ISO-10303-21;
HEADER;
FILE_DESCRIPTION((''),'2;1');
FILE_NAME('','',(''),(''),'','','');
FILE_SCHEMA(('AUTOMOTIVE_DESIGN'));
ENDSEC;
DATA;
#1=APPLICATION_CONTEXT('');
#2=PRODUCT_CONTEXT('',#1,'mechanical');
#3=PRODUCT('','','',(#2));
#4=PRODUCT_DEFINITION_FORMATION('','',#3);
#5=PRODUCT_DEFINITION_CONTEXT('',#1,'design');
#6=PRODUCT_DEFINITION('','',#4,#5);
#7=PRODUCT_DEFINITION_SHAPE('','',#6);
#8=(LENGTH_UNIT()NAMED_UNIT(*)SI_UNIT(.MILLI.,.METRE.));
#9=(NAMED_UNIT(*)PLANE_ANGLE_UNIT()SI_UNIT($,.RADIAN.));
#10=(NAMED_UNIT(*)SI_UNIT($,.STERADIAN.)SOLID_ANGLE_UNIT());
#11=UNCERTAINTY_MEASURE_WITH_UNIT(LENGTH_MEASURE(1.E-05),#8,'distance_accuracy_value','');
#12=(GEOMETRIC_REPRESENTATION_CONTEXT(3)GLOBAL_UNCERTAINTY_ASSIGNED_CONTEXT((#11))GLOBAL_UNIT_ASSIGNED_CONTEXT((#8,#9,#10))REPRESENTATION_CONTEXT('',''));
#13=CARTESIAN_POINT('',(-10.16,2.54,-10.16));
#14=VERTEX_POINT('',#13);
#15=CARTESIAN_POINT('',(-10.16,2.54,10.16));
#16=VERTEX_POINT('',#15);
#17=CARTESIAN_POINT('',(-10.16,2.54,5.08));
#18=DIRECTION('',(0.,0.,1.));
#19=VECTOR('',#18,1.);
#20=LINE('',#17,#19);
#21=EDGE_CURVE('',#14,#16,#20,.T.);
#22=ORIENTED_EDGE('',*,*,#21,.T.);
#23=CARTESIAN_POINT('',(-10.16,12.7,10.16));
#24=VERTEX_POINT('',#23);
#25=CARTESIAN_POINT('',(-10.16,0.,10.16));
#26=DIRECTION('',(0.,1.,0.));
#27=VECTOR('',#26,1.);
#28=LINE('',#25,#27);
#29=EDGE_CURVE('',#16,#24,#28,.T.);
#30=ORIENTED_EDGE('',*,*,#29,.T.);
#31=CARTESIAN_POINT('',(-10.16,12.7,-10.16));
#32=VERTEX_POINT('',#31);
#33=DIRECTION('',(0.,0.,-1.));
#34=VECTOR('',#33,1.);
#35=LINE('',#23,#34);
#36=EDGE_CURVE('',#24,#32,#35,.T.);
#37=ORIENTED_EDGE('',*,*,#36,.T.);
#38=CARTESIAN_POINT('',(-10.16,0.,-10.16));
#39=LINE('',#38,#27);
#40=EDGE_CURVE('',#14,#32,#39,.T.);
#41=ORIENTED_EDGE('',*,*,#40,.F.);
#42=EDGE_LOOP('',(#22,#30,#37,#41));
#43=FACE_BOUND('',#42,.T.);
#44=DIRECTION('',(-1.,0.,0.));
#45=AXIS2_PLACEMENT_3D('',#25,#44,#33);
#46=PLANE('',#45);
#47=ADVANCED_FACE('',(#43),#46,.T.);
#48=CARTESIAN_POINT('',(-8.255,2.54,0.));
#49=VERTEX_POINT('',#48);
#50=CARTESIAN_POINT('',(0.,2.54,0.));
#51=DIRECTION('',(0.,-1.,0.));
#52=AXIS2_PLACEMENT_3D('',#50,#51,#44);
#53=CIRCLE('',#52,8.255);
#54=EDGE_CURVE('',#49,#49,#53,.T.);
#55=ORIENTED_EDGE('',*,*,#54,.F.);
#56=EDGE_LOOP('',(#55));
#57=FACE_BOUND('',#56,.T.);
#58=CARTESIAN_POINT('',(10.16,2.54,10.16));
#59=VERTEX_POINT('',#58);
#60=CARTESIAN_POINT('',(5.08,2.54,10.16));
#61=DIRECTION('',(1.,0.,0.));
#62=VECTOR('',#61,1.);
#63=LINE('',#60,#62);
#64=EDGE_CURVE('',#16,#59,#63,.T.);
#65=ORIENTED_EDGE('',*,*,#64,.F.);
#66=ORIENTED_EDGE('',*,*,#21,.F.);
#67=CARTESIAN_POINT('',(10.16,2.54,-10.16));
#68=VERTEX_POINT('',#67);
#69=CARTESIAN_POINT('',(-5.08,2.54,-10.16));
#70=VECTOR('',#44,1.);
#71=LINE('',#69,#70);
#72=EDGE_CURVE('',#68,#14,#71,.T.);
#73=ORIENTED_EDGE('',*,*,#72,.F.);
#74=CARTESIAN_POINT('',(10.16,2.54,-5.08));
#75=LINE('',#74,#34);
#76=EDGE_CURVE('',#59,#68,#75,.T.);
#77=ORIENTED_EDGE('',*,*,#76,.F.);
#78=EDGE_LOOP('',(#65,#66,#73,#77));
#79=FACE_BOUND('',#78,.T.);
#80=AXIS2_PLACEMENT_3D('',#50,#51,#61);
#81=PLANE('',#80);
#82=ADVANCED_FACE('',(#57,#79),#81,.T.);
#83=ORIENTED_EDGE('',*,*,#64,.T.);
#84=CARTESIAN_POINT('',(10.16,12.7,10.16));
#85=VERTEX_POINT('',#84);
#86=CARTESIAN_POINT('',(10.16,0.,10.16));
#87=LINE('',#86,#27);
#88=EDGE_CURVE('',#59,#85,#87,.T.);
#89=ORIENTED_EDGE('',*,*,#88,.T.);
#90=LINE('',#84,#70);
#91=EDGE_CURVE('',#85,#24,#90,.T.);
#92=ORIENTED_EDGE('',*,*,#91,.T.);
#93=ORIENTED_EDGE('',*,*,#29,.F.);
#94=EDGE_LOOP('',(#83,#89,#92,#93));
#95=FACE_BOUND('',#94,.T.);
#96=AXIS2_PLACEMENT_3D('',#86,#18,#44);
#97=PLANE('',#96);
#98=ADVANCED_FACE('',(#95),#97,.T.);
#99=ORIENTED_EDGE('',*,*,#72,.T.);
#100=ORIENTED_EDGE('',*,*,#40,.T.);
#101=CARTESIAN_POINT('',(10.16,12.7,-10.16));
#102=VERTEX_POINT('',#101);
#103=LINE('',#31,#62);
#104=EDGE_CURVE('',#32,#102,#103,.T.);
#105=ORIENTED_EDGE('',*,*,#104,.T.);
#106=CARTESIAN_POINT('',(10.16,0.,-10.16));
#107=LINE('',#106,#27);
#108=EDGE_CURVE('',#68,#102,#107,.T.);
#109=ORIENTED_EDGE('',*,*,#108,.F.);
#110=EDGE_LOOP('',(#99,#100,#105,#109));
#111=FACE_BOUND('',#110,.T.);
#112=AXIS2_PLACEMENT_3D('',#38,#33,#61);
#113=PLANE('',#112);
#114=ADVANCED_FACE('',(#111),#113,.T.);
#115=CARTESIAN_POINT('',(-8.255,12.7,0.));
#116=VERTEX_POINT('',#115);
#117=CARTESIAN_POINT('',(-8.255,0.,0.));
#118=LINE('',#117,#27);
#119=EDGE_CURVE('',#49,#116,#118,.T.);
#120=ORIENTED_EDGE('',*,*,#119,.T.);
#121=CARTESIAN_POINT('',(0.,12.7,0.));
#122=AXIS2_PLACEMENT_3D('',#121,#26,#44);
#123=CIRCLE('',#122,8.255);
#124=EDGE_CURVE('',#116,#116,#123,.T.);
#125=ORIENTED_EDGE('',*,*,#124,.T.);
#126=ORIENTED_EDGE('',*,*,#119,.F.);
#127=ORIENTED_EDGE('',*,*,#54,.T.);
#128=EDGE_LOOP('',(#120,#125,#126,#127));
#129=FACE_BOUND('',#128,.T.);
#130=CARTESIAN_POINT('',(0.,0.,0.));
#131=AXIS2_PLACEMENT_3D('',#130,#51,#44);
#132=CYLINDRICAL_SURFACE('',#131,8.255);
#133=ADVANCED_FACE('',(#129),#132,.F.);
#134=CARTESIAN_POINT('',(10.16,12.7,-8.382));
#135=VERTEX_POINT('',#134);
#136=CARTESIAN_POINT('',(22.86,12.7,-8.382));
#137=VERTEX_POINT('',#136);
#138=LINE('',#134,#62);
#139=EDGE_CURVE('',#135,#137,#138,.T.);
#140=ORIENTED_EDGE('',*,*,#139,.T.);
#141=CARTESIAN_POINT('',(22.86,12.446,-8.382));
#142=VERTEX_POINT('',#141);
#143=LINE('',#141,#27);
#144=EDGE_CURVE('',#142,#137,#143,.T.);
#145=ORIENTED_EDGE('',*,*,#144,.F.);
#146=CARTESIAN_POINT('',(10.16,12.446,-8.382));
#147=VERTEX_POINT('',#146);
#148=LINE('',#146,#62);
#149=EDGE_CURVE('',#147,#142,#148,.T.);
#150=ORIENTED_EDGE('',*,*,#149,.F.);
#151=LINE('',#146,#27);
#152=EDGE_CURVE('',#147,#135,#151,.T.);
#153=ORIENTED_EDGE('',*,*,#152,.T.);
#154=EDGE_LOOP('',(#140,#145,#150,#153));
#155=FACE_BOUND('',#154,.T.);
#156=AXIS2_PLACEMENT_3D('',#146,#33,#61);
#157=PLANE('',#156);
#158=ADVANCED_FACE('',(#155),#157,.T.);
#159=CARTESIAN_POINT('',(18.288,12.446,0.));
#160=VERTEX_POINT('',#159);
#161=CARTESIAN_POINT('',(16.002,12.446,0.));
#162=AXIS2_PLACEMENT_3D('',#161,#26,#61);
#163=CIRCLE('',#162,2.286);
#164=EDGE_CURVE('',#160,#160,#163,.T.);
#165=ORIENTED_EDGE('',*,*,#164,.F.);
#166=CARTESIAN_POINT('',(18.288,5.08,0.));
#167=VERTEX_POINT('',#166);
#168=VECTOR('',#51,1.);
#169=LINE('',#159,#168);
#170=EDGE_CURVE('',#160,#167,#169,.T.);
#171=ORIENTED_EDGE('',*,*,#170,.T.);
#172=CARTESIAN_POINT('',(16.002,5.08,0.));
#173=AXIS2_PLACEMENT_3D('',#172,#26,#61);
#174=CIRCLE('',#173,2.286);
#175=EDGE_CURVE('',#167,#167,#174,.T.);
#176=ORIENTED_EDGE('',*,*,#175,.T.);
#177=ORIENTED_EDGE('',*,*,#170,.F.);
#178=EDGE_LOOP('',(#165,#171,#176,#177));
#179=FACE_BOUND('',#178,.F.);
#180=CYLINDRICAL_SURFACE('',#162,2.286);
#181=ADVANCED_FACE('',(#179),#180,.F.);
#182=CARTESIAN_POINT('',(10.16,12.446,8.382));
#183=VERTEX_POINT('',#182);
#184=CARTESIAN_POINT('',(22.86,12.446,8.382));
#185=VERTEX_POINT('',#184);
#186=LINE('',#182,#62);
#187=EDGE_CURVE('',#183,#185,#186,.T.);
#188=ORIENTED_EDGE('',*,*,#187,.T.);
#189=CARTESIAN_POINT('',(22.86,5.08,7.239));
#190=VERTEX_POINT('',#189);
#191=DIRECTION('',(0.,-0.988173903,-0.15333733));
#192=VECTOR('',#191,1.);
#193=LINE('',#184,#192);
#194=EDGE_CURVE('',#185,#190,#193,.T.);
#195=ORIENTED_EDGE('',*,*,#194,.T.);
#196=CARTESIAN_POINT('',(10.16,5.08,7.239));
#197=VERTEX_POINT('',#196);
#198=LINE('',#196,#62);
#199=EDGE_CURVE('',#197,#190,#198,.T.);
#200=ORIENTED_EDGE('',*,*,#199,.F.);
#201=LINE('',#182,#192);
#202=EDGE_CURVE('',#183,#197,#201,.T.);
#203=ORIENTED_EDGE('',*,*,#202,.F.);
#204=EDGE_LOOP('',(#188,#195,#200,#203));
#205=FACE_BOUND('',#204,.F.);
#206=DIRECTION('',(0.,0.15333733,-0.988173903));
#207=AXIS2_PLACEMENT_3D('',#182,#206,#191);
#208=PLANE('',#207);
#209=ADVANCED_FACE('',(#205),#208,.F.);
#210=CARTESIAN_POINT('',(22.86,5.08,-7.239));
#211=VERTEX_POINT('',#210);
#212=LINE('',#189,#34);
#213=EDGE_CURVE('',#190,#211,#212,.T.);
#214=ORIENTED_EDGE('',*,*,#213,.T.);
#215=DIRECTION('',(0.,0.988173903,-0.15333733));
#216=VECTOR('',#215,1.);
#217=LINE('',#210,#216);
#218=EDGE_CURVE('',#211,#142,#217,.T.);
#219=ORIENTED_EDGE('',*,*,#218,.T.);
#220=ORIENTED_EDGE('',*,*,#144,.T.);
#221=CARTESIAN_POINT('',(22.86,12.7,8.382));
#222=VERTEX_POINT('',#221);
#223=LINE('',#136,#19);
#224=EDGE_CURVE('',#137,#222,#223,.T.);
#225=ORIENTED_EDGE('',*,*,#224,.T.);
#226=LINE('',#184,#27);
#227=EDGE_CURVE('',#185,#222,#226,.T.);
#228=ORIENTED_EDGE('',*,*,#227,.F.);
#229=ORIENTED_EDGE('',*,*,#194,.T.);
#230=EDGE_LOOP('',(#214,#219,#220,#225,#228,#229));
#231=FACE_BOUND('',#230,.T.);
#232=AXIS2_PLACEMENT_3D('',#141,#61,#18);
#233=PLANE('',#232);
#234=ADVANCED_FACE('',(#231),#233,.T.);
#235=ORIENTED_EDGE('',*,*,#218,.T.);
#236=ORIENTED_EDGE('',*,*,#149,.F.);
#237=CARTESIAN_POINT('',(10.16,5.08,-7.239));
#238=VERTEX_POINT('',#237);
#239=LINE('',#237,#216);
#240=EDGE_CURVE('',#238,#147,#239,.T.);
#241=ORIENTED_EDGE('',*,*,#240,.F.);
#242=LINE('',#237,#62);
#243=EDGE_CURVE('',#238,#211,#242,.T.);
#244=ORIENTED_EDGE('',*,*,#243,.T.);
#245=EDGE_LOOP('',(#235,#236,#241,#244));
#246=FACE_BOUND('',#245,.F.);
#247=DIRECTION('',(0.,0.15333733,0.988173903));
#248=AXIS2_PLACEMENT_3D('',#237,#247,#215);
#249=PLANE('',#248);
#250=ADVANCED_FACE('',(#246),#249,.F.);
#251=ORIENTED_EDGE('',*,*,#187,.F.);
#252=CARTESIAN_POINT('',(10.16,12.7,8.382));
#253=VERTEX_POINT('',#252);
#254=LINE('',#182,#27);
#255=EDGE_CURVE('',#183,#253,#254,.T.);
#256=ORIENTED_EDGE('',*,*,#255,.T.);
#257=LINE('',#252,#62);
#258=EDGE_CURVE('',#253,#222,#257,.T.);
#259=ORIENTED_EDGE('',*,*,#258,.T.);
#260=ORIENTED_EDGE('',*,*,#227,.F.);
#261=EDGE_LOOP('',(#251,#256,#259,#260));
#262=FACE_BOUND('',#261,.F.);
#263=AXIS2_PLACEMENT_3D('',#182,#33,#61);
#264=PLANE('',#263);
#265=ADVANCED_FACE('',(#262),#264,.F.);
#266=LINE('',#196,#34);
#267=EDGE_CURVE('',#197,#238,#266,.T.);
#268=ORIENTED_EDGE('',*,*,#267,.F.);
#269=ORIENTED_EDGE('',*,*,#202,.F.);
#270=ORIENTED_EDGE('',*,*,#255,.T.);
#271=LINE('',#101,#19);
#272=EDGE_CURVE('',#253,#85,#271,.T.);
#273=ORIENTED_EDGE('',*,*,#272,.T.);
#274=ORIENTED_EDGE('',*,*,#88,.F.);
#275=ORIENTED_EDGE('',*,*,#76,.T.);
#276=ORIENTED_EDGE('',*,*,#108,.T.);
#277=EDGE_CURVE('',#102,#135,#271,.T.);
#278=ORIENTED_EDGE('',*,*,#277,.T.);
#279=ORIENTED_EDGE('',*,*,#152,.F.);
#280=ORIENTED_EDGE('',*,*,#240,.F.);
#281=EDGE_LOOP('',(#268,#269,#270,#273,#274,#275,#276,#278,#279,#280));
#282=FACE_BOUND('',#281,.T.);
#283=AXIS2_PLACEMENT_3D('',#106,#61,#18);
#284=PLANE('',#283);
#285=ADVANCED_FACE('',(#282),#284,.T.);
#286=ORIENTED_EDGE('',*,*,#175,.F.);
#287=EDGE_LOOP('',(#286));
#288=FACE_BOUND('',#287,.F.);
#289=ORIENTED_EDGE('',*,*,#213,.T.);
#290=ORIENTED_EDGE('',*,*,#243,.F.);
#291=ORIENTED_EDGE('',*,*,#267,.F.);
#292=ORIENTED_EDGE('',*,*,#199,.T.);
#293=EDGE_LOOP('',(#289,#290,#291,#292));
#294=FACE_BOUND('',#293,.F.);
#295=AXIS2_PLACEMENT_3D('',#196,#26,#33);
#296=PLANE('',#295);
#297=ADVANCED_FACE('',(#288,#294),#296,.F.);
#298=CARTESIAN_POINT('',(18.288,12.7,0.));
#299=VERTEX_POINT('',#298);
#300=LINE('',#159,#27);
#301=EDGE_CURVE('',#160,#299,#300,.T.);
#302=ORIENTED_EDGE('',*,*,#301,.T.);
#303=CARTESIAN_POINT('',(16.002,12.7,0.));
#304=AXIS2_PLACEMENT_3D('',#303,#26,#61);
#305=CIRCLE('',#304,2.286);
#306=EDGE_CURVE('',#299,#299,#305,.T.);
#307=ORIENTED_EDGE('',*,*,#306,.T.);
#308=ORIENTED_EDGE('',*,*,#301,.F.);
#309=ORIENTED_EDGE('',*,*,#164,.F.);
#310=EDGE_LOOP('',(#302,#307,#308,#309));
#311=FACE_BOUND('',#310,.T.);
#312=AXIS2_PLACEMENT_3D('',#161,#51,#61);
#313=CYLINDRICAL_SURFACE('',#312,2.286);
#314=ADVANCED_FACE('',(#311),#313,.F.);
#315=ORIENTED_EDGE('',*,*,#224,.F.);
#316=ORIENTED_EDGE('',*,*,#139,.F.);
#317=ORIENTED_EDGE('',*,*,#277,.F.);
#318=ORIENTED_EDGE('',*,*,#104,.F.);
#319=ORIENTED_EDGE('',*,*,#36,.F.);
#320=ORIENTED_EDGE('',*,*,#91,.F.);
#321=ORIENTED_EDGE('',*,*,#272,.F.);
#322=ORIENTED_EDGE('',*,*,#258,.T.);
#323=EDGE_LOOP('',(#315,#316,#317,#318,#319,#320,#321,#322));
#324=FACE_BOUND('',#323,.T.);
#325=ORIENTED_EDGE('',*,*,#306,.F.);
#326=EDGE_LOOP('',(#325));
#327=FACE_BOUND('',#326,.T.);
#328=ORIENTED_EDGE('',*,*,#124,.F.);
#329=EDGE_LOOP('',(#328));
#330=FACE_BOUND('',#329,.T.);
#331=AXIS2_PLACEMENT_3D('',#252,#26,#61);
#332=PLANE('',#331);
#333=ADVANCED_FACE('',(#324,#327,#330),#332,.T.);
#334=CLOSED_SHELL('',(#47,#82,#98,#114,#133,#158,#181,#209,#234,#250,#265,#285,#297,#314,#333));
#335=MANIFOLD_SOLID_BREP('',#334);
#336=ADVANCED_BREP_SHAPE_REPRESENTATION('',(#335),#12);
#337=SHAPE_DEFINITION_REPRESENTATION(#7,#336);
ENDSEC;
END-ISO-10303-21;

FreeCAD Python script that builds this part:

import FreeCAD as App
import Part
import Sketcher
from FreeCAD import Vector
Q = App.Units.Quantity


def add_polygon(sketch, points):
    """Adds a closed chain of lines whose ends are joined by coincident constraints."""
    first, n = sketch.GeometryCount, len(points)
    for a, b in zip(points, points[1:] + points[:1]):
        sketch.addGeometry(Part.LineSegment(App.Vector(*a, 0), App.Vector(*b, 0)), False)
    for i in range(n):
        sketch.addConstraint(Sketcher.Constraint("Coincident", first + i, 2, first + (i + 1) % n, 1))

doc = App.newDocument("Part")
body = doc.addObject("PartDesign::Body", "Body")

# Sketch on XZ plane
sketch1 = body.newObject("Sketcher::SketchObject", "Sketch")
sketch1.AttachmentSupport = (doc.getObject("XZ_Plane"), [""])
sketch1.MapMode = "FlatFace"
add_polygon(sketch1, [(-10.16, 10.16), (10.16, 10.16), (10.16, -10.16), (-10.16, -10.16)])  # lines 0-3
sketch1.addGeometry(Part.Circle(Vector(0, 0, 0), Vector(0, 0, 1), 8.255), False)  # 4
sketch1.addConstraint(Sketcher.Constraint("Horizontal", 0))
sketch1.addConstraint(Sketcher.Constraint("Vertical", 1))
sketch1.addConstraint(Sketcher.Constraint("Horizontal", 2))
sketch1.addConstraint(Sketcher.Constraint("Vertical", 3))
sketch1.addConstraint(Sketcher.Constraint("Coincident", 4, 3, -1, 1))
sketch1.addConstraint(Sketcher.Constraint("Symmetric", 0, 2, 2, 2, -1, 1))
sketch1.addConstraint(Sketcher.Constraint("Equal", 2, 1))
sketch1.addConstraint(Sketcher.Constraint("Diameter", 4, Q("0.65 in")))
sketch1.addConstraint(Sketcher.Constraint("DistanceX", 0, 1, 0, 2, Q("0.8 in")))
pad1 = body.newObject("PartDesign::Pad", "Pad")
pad1.Profile = sketch1
pad1.Length = Q("0.5 in")
pad1.Reversed = True

# Sketch on YZ plane
sketch2 = body.newObject("Sketcher::SketchObject", "Sketch001")
sketch2.AttachmentSupport = (doc.getObject("YZ_Plane"), [""])
sketch2.MapMode = "FlatFace"
sketch2.AttachmentOffset = App.Placement(Vector(0, 0, 0.4 * 25.4), App.Rotation())
add_polygon(sketch2, [(12.446, -8.382), (12.446, 8.382), (5.08, 7.239), (5.08, -7.239)])  # lines 0-3
sketch2.addConstraint(Sketcher.Constraint("Vertical", 0))
sketch2.addConstraint(Sketcher.Constraint("Vertical", 2))
sketch2.addConstraint(Sketcher.Constraint("Equal", 1, 3))
sketch2.addConstraint(Sketcher.Constraint("DistanceY", 0, 1, 0, 2, Q("0.66 in")))
sketch2.addConstraint(Sketcher.Constraint("DistanceY", 2, 2, 2, 1, Q("0.57 in")))
sketch2.addConstraint(Sketcher.Constraint("DistanceX", -1, 1, 1, 2, Q("0.2 in")))
sketch2.addConstraint(Sketcher.Constraint("DistanceX", 1, 2, 0, 2, Q("0.29 in")))
sketch2.addConstraint(Sketcher.Constraint("DistanceY", -1, 1, 0, 2, Q("0.33 in")))
pad2 = body.newObject("PartDesign::Pad", "Pad001")
pad2.Profile = sketch2
pad2.Length = Q("0.5 in")

# Sketch on XZ plane
sketch3 = body.newObject("Sketcher::SketchObject", "Sketch002")
sketch3.AttachmentSupport = (doc.getObject("XZ_Plane"), [""])
sketch3.MapMode = "FlatFace"
sketch3.AttachmentOffset = App.Placement(Vector(0, 0, -0.49 * 25.4), App.Rotation())
sketch3.addGeometry(Part.Circle(Vector(16.002, 0, 0), Vector(0, 0, 1), 2.286), False)
sketch3.addConstraint(Sketcher.Constraint("PointOnObject", 0, 3, -1))
sketch3.addConstraint(Sketcher.Constraint("Diameter", 0, Q("0.18 in")))
sketch3.addConstraint(Sketcher.Constraint("DistanceX", -1, 1, 0, 3, Q("0.63 in")))
pocket1 = body.newObject("PartDesign::Pocket", "Pocket")
pocket1.Profile = sketch3
pocket1.Length = Q("0.7 in")
pocket1.Reversed = True

# Sketch on XZ plane
sketch4 = body.newObject("Sketcher::SketchObject", "Sketch003")
sketch4.AttachmentSupport = (doc.getObject("XZ_Plane"), [""])
sketch4.MapMode = "FlatFace"
sketch4.AttachmentOffset = App.Placement(Vector(0, 0, -0.49 * 25.4), App.Rotation())
add_polygon(sketch4, [(10.16, -8.382), (10.16, 8.382), (22.86, 8.382), (22.86, -8.382)])  # lines 0-3
sketch4.addGeometry(Part.Circle(Vector(16.002, 0, 0), Vector(0, 0, 1), 2.286), False)  # 4
sketch4.addConstraint(Sketcher.Constraint("Vertical", 0))
sketch4.addConstraint(Sketcher.Constraint("Horizontal", 1))
sketch4.addConstraint(Sketcher.Constraint("Vertical", 2))
sketch4.addConstraint(Sketcher.Constraint("Horizontal", 3))
sketch4.addConstraint(Sketcher.Constraint("PointOnObject", 4, 3, -1))
sketch4.addConstraint(Sketcher.Constraint("Diameter", 4, Q("0.18 in")))
sketch4.addConstraint(Sketcher.Constraint("DistanceX", 1, 1, 1, 2, Q("0.5 in")))
sketch4.addConstraint(Sketcher.Constraint("DistanceY", 0, 1, 0, 2, Q("0.66 in")))
sketch4.addConstraint(Sketcher.Constraint("DistanceX", -1, 1, 0, 2, Q("0.4 in")))
sketch4.addConstraint(Sketcher.Constraint("DistanceX", -1, 1, 4, 3, Q("0.63 in")))
sketch4.addConstraint(Sketcher.Constraint("DistanceY", -1, 1, 0, 2, Q("0.33 in")))
pad3 = body.newObject("PartDesign::Pad", "Pad002")
pad3.Profile = sketch4
pad3.Length = Q("0.01 in")
pad3.Reversed = True

# Sketch on XZ plane
sketch5 = body.newObject("Sketcher::SketchObject", "Sketch004")
sketch5.AttachmentSupport = (doc.getObject("XZ_Plane"), [""])
sketch5.MapMode = "FlatFace"
add_polygon(sketch5, [(14.2823, -26.9822), (14.2823, 20.4865), (-14.5737, 20.4865), (-14.5737, -26.9822)])  # lines 0-3
sketch5.addConstraint(Sketcher.Constraint("Vertical", 0))
sketch5.addConstraint(Sketcher.Constraint("Horizontal", 1))
sketch5.addConstraint(Sketcher.Constraint("Vertical", 2))
sketch5.addConstraint(Sketcher.Constraint("Horizontal", 3))
sketch5.addConstraint(Sketcher.Constraint("DistanceX", 1, 2, 1, 1, 28.856))
sketch5.addConstraint(Sketcher.Constraint("DistanceY", 0, 1, 0, 2, 47.4687))
sketch5.addConstraint(Sketcher.Constraint("DistanceX", -1, 1, 0, 2, Q("0.5623 in")))
sketch5.addConstraint(Sketcher.Constraint("DistanceY", 2, 2, -1, 1, Q("1.0623 in")))
pocket2 = body.newObject("PartDesign::Pocket", "Pocket001")
pocket2.Profile = sketch5
pocket2.Length = Q("0.1 in")

doc.recompute()
